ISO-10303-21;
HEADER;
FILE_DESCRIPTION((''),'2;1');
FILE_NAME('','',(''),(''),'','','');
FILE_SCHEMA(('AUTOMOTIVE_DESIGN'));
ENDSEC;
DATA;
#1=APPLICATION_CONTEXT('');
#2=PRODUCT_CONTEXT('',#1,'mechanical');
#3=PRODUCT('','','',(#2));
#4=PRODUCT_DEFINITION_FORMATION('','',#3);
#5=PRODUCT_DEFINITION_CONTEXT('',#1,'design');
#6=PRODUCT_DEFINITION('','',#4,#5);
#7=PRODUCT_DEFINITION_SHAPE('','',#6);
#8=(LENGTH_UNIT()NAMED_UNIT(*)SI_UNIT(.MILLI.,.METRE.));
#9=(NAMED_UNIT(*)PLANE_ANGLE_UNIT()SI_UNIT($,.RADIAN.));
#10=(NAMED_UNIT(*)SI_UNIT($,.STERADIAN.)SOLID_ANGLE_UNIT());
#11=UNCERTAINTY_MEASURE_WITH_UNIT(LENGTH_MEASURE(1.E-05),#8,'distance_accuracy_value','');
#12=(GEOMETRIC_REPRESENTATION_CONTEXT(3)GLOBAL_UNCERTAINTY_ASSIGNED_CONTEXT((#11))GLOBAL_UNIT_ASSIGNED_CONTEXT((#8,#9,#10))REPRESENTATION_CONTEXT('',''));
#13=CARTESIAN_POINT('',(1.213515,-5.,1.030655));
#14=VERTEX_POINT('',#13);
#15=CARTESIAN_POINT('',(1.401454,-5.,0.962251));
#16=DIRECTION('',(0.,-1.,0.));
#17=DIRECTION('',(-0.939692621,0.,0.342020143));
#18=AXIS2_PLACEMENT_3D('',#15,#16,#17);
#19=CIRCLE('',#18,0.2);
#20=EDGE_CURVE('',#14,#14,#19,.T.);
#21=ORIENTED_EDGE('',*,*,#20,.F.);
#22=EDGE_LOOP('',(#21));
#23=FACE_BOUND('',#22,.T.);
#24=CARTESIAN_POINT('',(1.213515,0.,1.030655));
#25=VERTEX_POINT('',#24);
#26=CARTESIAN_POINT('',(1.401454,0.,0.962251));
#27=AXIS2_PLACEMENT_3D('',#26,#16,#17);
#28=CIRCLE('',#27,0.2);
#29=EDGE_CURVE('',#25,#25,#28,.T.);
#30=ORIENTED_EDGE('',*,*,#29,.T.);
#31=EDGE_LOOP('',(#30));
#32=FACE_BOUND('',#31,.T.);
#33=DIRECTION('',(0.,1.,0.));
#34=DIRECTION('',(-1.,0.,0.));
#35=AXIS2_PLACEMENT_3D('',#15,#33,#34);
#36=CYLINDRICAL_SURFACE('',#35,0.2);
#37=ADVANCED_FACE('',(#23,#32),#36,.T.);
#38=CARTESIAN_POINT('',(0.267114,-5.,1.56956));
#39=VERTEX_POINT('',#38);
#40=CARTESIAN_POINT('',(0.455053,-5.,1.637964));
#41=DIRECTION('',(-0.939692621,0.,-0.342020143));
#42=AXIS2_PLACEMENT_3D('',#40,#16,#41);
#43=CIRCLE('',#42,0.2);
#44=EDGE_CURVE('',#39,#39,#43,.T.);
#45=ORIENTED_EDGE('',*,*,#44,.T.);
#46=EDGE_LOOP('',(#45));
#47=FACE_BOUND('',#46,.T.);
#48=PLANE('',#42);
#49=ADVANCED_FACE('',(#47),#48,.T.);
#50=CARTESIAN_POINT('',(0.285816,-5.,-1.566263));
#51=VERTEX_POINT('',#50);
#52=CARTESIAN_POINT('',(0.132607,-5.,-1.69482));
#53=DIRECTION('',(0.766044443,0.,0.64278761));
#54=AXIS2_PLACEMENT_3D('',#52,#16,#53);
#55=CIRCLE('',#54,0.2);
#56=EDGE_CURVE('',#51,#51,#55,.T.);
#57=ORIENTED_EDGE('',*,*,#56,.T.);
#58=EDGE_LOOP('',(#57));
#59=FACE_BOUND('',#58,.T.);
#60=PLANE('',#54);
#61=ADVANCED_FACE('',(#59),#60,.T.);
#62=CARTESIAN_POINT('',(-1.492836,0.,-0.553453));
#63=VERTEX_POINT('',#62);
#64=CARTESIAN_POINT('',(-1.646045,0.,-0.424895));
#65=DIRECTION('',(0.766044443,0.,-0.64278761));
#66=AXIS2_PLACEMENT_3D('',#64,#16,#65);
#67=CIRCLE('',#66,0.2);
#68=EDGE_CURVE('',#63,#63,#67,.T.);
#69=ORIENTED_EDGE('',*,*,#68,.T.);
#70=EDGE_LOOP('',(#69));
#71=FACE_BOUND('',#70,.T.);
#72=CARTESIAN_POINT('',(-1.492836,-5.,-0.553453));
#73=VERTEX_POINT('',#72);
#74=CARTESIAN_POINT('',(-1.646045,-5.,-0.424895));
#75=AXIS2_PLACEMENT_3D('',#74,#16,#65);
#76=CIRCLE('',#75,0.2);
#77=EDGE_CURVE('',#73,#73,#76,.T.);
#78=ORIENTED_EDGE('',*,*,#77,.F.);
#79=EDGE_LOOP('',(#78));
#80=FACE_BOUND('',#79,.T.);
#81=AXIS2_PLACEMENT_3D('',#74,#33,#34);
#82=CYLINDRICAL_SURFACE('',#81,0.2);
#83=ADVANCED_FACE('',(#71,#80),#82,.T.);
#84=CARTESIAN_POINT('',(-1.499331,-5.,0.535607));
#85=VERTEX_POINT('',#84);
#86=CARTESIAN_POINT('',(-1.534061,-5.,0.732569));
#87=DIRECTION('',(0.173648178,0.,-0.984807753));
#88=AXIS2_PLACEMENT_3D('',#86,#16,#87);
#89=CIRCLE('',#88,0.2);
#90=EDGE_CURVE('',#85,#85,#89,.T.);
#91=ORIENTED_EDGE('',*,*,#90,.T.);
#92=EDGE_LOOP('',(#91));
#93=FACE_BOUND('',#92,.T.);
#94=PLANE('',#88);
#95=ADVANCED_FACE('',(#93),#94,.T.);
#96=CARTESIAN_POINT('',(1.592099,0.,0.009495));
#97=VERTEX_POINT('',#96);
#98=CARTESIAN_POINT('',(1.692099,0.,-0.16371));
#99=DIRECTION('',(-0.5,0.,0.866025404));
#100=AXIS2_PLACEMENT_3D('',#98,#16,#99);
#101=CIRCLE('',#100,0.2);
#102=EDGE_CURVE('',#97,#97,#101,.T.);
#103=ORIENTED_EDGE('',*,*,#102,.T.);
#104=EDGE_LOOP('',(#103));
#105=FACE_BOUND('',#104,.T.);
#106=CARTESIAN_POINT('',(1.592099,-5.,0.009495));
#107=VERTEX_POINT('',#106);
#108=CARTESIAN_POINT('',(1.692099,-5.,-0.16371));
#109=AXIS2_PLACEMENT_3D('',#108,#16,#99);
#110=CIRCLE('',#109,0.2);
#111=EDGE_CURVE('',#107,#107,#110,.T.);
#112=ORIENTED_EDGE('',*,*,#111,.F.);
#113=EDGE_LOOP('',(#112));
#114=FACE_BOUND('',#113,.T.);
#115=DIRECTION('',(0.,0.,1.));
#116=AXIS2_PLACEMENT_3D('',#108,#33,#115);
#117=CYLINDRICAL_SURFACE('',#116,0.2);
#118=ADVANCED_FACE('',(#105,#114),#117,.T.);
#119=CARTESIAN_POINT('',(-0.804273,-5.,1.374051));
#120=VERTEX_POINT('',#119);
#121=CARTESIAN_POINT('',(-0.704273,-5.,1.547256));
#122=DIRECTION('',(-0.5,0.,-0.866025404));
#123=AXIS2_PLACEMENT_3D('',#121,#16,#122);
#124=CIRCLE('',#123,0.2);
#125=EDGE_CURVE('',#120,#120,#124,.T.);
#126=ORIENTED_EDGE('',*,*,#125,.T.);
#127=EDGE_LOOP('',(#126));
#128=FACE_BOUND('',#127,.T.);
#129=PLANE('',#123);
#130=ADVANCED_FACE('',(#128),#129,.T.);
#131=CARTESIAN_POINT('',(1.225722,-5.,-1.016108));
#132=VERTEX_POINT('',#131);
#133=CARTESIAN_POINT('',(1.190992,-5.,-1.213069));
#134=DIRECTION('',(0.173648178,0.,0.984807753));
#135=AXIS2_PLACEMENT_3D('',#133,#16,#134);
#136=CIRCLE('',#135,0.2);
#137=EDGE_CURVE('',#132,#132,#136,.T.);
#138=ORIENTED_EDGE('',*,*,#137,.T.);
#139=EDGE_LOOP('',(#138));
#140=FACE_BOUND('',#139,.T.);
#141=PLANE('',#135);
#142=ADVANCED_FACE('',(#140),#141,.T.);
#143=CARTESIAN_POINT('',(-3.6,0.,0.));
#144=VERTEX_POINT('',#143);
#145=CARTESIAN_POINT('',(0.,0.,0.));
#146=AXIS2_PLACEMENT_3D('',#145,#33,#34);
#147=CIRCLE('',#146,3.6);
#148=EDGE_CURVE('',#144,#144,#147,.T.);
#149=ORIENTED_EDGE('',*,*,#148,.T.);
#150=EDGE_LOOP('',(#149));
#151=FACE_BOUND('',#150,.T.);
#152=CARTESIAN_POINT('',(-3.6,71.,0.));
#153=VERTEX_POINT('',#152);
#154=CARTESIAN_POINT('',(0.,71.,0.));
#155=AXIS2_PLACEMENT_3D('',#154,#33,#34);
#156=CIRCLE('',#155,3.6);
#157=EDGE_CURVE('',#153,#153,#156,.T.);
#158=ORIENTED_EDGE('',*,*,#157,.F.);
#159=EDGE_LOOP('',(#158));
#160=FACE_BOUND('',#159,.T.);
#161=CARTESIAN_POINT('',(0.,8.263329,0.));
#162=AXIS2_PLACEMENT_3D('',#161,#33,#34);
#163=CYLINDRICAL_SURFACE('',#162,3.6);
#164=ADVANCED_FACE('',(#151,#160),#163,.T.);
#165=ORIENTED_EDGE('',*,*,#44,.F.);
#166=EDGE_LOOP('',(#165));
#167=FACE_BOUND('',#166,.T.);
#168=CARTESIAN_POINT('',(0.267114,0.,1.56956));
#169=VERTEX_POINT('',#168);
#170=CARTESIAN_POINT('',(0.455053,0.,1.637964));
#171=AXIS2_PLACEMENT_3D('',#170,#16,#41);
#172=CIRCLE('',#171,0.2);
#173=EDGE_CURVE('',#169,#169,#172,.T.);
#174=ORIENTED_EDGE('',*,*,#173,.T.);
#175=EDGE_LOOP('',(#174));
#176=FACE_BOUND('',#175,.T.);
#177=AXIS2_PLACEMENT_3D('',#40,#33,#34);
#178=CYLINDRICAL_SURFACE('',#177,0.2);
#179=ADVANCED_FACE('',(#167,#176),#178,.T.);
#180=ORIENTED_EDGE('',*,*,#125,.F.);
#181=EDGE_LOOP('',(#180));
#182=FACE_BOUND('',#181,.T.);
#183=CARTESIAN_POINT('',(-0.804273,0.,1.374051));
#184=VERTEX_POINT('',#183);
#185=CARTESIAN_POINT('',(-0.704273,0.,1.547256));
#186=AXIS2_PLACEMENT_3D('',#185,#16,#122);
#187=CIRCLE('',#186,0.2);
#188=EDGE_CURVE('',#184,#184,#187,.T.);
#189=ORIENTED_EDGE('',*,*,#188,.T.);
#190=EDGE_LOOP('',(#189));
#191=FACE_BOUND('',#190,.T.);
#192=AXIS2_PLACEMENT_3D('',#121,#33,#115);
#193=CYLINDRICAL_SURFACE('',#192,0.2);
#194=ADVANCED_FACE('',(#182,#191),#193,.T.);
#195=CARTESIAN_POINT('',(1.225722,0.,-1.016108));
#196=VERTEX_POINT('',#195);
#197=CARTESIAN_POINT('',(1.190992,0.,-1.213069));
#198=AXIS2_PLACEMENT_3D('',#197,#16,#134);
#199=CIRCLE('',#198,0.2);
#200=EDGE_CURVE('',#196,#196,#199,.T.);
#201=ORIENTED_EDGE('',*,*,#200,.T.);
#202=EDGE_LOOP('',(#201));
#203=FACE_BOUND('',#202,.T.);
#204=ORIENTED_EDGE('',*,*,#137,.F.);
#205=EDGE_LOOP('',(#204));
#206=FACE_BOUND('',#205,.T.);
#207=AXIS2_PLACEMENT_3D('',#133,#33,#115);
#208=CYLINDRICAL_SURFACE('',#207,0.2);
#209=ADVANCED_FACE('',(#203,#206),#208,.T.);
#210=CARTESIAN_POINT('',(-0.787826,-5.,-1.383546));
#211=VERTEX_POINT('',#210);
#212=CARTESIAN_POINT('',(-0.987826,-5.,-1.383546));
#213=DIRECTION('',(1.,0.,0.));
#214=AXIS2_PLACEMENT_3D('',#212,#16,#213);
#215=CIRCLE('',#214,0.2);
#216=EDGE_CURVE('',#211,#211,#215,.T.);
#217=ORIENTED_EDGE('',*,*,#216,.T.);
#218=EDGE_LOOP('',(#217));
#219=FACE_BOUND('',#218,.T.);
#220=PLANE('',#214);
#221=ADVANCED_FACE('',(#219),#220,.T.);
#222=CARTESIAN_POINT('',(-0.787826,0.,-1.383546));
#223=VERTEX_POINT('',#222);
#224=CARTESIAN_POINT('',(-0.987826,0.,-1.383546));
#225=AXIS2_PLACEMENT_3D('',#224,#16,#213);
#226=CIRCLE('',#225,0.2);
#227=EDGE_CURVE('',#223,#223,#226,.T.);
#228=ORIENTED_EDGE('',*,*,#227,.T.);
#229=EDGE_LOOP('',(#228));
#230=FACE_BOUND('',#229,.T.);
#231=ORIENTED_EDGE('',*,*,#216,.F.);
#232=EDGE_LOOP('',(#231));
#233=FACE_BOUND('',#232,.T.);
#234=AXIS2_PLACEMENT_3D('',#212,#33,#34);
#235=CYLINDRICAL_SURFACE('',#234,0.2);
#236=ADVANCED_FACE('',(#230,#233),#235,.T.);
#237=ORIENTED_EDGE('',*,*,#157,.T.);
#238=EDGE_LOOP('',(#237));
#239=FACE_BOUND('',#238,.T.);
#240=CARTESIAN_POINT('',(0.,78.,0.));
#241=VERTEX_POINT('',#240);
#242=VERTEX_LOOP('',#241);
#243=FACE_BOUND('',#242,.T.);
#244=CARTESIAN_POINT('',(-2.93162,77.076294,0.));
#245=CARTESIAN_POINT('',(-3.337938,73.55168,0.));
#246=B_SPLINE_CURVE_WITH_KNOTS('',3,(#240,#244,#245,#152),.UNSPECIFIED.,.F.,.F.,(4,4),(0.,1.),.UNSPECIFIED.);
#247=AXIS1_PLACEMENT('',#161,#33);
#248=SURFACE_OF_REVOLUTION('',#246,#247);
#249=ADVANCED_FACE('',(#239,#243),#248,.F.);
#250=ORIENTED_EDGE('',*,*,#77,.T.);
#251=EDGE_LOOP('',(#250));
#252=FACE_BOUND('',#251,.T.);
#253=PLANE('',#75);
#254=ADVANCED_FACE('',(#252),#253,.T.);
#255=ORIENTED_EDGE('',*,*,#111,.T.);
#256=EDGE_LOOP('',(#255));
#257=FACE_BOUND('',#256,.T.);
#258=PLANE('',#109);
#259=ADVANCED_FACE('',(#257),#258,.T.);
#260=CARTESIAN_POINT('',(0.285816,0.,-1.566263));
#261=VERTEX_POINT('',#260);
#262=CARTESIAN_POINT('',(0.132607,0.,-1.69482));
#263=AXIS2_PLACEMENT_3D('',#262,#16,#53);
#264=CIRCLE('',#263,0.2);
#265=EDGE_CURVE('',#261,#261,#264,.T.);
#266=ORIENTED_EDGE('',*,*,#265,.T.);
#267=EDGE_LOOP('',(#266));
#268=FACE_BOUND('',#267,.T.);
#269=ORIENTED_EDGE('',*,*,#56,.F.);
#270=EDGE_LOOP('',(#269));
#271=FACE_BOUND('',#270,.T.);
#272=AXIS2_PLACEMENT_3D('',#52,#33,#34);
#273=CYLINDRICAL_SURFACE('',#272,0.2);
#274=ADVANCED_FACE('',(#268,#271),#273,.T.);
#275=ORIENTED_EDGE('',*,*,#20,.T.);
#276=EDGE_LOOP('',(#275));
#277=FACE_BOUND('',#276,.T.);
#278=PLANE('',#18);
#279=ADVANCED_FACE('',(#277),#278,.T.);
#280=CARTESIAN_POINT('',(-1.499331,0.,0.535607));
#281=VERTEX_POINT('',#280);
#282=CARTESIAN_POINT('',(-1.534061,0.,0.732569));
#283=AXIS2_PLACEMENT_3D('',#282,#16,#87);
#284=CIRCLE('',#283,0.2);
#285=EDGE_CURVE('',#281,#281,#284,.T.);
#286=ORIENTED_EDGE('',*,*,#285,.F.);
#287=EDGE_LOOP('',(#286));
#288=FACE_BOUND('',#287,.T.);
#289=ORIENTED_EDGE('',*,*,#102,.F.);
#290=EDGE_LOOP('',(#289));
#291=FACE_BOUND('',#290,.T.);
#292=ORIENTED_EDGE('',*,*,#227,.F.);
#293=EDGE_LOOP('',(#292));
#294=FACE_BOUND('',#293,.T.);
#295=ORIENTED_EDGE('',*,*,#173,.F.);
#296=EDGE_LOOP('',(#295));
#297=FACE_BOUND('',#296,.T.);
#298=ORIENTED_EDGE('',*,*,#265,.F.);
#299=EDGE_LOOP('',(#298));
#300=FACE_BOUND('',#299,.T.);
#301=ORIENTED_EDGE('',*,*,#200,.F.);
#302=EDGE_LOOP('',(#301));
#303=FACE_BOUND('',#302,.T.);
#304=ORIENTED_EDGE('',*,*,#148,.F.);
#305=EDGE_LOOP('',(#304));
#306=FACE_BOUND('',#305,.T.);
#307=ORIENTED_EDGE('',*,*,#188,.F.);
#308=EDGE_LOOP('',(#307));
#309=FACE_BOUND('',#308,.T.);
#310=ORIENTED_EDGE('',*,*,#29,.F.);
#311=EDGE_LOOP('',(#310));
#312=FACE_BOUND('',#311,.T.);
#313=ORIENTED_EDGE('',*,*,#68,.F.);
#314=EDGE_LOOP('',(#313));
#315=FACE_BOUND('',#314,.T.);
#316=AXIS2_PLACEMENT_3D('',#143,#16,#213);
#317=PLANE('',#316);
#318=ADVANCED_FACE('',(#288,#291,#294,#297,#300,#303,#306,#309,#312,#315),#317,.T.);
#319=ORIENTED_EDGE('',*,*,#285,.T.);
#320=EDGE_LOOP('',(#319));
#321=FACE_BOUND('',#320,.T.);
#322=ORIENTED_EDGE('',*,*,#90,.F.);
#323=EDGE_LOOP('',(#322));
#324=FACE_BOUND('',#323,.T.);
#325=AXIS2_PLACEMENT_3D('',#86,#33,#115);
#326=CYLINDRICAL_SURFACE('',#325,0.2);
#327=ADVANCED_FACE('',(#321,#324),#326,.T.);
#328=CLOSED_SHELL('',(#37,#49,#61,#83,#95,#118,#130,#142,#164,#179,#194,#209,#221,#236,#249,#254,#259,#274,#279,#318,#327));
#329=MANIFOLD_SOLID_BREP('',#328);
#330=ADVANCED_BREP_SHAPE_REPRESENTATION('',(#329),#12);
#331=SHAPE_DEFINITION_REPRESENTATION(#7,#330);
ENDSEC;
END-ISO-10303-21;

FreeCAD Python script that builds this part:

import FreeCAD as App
import Part
import Sketcher
from FreeCAD import Vector
Q = App.Units.Quantity

doc = App.newDocument("Part")
body = doc.addObject("PartDesign::Body", "Body")

sketch1 = doc.addObject("Sketcher::SketchObject", "Sketch")
body.addObject(sketch1)
sketch1.AttachmentSupport = (doc.XY_Plane, [""])
sketch1.MapMode = "FlatFace"
sketch1.addGeometry([
    Part.LineSegment(Vector(-3.6, 71, 0), Vector(-3.6, 0, 0)),
    Part.LineSegment(Vector(-3.6, 0, 0), Vector(0, 0, 0)),
    Part.LineSegment(Vector(0, 0, 0), Vector(0, 78, 0)),
    Part.BSplineCurve([Vector(-3.6, 71, 0), Vector(-3.337938, 73.55168, 0), Vector(-2.93162, 77.076294, 0), Vector(0, 78, 0)], [4, 4], [0, 1], False, 3, [1, 1, 1, 1], False),
], False)
sketch1.addConstraint([
    Sketcher.Constraint("Block", 3),
    Sketcher.Constraint("Coincident", 0, 2, 1, 1),
    Sketcher.Constraint("Coincident", 1, 2, 2, 1),
    Sketcher.Constraint("Coincident", 2, 2, 3, 2),
    Sketcher.Constraint("Coincident", 3, 1, 0, 1),
    Sketcher.Constraint("Vertical", 0),
    Sketcher.Constraint("Horizontal", 1),
    Sketcher.Constraint("Vertical", 2),
    Sketcher.Constraint("PointOnObject", 0, 2, -1),
])
revolution = doc.addObject("PartDesign::Revolution", "Revolution")
body.addObject(revolution)
revolution.Profile = sketch1
revolution.ReferenceAxis = (sketch1, ["V_Axis"])
revolution.Angle = 360

sketch2 = doc.addObject("Sketcher::SketchObject", "Sketch001")
body.addObject(sketch2)
sketch2.AttachmentSupport = (doc.XZ_Plane, [""])
sketch2.MapMode = "FlatFace"
sketch2.addGeometry(Part.Circle(Vector(-0.987826, -1.383546, 0), Vector(0, 0, 1), 0.2), False)
sketch2.addConstraint([
    Sketcher.Constraint("Diameter", 0, Q("0.4 mm")),
    Sketcher.Constraint("DistanceX", 0, 3, -1, 1, Q("0.987826 mm")),
    Sketcher.Constraint("DistanceY", 0, 3, -1, 1, Q("1.383546 mm")),
])
pad1 = doc.addObject("PartDesign::Pad", "Pad")
body.addObject(pad1)
pad1.Profile = sketch2
pad1.Length = 5
doc.recompute()

polarpattern = doc.addObject("PartDesign::PolarPattern", "PolarPattern")
body.addObject(polarpattern)
polarpattern.Originals = [pad1]
polarpattern.Axis = (doc.Y_Axis, [""])
polarpattern.Angle = 360
polarpattern.Occurrences = 9
body.Tip = polarpattern

doc.recompute()
